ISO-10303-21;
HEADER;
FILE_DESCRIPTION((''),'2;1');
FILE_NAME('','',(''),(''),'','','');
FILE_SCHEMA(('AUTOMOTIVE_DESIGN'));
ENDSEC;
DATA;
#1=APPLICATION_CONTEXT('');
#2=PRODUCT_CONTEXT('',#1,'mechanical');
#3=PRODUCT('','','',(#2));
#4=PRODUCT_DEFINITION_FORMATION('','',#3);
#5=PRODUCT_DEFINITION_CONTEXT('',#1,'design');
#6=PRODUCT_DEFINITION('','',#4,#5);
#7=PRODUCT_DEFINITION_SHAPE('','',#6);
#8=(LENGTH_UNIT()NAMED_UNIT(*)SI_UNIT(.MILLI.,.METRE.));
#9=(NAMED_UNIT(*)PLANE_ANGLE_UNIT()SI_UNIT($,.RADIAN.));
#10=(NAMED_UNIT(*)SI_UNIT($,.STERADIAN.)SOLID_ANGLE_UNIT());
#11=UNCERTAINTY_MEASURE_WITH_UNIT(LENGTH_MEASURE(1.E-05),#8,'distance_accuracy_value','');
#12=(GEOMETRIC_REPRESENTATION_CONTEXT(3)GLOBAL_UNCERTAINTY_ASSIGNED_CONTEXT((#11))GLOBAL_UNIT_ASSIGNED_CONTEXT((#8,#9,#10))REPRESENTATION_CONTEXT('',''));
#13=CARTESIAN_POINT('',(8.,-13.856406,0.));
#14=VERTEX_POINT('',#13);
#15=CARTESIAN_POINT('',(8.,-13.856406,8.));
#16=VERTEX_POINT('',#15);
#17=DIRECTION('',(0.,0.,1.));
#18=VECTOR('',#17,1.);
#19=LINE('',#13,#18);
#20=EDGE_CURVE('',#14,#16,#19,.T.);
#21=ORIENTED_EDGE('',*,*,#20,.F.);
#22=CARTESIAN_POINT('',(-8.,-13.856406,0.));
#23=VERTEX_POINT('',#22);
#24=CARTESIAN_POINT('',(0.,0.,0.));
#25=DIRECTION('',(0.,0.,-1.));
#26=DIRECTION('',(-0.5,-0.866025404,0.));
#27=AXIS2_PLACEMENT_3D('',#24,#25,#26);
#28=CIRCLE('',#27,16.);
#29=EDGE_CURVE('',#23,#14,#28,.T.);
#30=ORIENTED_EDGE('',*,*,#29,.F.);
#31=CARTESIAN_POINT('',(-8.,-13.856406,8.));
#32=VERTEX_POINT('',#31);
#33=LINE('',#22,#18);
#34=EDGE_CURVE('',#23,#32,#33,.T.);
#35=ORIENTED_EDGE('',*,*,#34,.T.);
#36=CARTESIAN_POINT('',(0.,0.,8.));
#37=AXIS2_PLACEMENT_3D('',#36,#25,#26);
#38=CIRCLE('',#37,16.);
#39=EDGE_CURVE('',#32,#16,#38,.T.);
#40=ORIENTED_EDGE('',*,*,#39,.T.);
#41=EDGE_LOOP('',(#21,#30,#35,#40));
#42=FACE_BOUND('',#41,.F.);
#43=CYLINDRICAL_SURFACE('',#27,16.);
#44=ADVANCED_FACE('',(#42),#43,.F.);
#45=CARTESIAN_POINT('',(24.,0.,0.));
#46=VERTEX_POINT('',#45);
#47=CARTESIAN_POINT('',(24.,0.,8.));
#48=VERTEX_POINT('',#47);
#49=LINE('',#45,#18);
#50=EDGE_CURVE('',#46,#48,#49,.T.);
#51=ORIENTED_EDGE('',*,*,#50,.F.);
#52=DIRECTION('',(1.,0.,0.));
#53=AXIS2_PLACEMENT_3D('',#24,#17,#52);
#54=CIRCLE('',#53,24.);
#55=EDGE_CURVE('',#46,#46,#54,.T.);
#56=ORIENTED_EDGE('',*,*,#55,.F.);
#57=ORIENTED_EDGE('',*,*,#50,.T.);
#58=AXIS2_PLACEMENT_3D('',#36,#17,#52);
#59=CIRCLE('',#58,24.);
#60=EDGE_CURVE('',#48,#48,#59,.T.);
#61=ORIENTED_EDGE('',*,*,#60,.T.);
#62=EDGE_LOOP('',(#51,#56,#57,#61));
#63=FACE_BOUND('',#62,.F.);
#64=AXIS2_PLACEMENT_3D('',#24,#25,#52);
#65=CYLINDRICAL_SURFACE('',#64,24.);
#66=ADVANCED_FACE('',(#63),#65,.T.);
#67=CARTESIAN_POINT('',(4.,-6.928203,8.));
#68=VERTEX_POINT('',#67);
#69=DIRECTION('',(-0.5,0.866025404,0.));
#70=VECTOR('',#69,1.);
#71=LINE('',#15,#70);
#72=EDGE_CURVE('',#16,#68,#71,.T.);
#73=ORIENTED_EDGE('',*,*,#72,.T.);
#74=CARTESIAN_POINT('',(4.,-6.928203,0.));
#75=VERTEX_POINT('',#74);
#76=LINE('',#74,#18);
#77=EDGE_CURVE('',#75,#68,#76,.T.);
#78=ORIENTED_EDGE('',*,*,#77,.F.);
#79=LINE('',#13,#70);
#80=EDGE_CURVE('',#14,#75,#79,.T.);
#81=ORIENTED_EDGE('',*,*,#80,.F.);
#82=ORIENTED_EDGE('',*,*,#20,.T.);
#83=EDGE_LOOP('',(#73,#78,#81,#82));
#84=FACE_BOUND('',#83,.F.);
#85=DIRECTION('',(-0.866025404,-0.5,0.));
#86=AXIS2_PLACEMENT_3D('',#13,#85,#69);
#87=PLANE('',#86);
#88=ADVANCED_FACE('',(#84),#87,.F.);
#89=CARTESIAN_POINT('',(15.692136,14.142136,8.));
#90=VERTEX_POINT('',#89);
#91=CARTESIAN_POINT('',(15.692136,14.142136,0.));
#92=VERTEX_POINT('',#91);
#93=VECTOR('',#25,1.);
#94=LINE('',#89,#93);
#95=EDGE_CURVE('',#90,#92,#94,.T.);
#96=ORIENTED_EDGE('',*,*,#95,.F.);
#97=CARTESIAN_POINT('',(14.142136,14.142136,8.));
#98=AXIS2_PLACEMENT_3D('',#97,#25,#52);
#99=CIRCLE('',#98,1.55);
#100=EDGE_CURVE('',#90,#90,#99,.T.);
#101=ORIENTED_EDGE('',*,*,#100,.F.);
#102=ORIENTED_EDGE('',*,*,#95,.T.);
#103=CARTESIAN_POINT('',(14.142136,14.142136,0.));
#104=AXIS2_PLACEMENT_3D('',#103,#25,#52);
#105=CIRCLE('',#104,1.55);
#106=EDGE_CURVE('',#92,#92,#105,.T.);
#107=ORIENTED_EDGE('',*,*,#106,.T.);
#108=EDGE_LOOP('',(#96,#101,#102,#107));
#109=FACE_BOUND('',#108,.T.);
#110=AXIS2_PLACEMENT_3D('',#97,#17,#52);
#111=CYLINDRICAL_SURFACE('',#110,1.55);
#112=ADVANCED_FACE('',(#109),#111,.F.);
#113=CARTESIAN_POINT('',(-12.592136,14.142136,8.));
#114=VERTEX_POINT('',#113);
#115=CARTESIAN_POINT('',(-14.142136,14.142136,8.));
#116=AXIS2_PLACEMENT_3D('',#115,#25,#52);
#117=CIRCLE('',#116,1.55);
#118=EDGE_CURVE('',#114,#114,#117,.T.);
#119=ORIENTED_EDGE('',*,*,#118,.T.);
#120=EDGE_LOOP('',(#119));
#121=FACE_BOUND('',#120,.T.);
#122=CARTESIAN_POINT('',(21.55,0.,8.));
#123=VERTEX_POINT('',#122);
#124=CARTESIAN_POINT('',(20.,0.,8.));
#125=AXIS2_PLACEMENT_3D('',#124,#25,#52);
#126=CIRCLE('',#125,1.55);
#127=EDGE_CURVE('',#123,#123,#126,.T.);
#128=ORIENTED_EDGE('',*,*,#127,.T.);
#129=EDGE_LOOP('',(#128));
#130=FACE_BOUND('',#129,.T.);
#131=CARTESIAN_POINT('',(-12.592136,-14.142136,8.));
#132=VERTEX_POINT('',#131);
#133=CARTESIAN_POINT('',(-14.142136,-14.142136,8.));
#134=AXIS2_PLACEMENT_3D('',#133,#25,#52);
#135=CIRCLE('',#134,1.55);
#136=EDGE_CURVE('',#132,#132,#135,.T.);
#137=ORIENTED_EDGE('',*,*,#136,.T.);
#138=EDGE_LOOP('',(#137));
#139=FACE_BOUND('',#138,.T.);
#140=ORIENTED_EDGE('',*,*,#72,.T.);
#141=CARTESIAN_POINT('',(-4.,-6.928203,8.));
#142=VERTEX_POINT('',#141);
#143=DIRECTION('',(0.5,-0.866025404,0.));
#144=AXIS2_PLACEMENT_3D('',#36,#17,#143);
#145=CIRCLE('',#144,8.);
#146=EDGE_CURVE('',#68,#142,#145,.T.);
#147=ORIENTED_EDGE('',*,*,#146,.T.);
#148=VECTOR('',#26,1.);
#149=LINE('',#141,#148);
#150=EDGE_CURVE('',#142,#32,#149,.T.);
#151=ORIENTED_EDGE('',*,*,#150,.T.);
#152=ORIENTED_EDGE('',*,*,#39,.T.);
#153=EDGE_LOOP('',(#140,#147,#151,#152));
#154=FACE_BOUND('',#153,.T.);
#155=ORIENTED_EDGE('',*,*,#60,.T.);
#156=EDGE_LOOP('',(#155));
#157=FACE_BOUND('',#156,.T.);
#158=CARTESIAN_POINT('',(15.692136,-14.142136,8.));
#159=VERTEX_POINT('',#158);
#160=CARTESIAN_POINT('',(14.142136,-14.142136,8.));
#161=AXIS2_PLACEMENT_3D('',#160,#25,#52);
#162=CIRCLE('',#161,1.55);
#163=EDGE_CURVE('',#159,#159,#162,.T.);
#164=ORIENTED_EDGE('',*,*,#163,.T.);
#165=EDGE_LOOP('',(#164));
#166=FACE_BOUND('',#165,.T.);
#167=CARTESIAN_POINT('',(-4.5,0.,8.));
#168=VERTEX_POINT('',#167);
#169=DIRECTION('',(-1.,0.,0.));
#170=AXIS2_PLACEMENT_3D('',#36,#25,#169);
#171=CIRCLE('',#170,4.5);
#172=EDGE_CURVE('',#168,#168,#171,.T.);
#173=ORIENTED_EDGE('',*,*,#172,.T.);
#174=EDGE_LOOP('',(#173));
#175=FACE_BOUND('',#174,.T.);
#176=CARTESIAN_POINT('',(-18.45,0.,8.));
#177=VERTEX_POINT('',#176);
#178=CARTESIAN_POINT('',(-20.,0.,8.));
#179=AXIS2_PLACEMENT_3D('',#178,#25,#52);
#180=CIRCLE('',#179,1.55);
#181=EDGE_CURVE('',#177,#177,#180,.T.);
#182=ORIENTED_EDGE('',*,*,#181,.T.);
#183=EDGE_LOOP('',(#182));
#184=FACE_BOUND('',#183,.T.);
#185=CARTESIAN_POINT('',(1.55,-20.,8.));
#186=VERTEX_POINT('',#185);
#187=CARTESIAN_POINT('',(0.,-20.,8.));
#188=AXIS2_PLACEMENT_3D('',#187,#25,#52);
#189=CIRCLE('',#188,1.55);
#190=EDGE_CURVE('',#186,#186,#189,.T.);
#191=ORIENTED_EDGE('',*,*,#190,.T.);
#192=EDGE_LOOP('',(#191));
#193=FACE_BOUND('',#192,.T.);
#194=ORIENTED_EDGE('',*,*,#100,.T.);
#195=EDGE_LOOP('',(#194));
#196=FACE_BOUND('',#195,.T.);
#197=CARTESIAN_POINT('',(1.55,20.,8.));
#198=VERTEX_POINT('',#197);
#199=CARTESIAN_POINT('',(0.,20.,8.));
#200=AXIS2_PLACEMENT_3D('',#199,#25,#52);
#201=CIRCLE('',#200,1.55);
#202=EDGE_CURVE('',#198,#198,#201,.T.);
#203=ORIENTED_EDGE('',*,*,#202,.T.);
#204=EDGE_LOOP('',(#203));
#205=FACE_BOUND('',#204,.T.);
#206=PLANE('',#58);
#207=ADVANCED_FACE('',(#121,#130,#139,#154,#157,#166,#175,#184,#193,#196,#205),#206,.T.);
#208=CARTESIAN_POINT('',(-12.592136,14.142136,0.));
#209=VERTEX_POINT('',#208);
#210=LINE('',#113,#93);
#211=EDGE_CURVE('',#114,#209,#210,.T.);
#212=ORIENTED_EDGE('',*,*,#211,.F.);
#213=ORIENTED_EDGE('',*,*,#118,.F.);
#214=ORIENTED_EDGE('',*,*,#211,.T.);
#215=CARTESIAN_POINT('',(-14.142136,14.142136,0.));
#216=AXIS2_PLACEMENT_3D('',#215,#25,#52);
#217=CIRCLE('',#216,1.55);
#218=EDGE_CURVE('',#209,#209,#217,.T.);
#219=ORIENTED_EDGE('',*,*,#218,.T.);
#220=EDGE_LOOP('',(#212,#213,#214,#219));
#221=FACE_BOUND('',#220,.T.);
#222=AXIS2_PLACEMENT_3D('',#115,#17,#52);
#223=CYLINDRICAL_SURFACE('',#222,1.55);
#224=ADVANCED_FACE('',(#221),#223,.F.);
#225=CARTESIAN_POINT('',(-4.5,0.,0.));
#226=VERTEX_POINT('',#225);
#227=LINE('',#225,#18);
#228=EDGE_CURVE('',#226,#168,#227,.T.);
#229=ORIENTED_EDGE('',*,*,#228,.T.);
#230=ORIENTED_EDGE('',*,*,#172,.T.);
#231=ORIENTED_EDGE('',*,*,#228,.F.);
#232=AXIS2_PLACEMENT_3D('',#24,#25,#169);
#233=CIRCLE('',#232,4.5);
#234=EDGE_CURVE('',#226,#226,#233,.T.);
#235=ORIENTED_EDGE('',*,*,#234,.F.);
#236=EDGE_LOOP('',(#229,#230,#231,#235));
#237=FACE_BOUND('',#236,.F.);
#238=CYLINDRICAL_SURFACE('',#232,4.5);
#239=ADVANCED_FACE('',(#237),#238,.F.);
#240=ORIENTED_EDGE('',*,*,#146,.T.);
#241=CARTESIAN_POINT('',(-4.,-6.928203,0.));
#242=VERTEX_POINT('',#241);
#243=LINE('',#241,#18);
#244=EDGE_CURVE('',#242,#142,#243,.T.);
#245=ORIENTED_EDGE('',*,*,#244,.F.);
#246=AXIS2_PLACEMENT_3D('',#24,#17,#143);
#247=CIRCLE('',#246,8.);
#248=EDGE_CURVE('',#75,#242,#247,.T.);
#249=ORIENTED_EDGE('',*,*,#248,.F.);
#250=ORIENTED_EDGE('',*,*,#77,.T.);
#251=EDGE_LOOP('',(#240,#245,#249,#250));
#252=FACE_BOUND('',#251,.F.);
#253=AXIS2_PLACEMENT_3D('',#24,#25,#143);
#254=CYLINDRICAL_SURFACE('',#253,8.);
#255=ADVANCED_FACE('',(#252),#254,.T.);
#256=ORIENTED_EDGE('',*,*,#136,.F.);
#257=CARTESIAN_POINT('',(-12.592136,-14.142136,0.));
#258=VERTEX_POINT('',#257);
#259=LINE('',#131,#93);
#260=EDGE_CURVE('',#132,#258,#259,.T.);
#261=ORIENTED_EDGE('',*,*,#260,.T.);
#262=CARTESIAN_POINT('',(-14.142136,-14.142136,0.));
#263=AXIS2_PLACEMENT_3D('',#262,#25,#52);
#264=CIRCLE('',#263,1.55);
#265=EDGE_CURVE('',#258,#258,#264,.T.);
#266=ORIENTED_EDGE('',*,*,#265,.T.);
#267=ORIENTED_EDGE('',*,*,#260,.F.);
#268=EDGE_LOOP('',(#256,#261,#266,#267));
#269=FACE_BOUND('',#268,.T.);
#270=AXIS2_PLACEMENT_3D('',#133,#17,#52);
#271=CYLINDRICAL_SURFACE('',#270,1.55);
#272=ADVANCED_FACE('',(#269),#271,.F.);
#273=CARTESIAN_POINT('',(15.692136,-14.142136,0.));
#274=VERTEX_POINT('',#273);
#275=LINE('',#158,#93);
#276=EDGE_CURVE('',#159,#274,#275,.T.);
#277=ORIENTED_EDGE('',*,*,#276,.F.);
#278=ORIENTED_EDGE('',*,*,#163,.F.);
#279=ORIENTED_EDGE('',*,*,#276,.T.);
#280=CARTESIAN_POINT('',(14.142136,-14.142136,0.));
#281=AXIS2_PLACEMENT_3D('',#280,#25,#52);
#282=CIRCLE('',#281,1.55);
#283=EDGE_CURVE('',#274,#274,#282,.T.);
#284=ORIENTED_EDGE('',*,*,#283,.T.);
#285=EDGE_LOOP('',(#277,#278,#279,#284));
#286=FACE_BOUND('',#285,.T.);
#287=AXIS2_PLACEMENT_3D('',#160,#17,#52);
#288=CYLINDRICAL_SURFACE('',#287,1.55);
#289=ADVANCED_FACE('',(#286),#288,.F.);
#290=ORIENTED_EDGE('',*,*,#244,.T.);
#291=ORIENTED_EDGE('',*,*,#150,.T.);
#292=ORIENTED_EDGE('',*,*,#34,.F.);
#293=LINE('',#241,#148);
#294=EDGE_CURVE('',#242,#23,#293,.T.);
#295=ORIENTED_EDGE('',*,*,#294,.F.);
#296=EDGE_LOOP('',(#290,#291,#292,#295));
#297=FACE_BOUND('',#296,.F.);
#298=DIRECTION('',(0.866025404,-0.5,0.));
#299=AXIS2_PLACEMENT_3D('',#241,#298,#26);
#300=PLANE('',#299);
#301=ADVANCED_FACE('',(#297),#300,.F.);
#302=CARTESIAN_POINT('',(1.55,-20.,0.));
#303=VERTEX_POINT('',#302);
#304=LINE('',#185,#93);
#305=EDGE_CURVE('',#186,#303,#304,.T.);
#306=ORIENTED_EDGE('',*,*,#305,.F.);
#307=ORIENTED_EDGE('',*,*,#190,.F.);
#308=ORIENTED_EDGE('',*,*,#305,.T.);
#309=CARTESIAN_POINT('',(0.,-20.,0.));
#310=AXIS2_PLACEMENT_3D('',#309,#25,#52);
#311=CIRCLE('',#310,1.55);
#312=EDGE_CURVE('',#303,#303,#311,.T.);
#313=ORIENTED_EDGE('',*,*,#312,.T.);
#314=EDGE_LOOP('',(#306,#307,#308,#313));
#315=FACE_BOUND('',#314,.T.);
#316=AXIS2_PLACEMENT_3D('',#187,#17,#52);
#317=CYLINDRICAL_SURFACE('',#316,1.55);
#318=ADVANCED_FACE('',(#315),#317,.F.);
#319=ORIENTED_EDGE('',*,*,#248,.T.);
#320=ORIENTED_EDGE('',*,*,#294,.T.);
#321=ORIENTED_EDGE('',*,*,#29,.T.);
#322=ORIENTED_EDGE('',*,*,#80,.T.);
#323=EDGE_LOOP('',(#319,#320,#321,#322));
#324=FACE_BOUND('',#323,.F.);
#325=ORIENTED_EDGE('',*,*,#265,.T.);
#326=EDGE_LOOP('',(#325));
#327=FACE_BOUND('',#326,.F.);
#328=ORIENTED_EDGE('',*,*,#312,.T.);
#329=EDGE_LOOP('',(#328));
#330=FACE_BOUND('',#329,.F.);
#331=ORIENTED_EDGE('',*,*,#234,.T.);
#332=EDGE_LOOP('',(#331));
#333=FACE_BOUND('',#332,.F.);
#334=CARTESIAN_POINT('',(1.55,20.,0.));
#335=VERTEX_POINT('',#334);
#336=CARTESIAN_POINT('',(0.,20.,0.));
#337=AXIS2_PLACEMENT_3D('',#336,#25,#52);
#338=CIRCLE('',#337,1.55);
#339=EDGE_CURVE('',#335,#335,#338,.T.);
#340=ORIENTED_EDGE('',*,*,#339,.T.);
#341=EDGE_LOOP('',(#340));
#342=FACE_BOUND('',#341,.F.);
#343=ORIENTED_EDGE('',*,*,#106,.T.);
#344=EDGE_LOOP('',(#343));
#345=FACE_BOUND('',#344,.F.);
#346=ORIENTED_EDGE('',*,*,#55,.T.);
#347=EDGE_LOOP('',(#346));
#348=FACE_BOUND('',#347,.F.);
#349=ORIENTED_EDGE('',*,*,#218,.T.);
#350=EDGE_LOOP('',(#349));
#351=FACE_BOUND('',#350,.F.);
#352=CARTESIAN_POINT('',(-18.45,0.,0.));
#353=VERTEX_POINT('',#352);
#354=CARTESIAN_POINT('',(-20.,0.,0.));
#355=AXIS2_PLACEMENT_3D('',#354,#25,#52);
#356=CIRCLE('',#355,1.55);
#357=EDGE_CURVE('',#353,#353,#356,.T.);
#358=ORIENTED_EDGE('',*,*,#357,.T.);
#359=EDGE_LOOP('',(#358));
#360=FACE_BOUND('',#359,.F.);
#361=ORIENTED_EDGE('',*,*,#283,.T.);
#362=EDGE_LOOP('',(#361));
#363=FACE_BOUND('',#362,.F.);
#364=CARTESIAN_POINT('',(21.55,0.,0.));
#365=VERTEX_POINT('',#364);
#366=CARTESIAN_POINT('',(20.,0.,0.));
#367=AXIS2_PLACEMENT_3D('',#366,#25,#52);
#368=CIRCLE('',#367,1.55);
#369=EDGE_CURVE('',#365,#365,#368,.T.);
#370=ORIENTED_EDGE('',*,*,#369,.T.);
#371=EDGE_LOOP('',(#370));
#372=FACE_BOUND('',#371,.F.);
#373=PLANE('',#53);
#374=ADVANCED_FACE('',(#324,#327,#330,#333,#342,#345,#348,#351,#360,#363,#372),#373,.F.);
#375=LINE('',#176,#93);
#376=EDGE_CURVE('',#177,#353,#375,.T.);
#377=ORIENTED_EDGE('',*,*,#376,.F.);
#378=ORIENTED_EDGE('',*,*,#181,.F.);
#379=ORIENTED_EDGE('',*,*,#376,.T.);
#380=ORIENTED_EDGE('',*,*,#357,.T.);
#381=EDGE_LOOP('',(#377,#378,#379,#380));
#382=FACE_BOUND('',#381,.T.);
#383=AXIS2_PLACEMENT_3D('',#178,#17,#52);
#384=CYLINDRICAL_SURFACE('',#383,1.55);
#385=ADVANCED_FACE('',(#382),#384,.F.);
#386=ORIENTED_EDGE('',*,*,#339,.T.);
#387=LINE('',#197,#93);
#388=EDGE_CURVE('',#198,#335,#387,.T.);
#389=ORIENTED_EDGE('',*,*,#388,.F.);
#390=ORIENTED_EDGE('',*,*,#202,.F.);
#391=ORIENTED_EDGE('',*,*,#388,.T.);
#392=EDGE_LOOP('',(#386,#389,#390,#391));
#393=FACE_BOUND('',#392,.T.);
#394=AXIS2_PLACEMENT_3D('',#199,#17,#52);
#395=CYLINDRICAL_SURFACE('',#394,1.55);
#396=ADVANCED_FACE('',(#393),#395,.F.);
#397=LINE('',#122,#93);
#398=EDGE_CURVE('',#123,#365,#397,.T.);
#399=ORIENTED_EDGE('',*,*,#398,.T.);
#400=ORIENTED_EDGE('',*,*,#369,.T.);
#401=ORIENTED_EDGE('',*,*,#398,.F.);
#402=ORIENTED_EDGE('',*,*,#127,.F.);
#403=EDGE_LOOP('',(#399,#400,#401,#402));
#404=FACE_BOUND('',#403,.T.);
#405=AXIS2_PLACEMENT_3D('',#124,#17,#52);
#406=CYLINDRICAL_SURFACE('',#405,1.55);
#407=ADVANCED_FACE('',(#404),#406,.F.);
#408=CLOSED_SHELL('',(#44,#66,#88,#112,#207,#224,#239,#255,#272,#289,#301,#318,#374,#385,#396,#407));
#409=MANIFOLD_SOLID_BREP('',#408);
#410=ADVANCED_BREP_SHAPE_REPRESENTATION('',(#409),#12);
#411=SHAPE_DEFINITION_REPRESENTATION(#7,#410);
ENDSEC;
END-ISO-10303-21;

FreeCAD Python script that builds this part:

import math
import FreeCAD as App
import Part
import Sketcher
from FreeCAD import Vector
Q = App.Units.Quantity

doc = App.newDocument("Part")
params = doc.addObject("Spreadsheet::Sheet", "Params")
for row, (alias, value) in enumerate([
    ("sketch1_diameter", "48 mm"),
    ("pad1_length", "8 mm"),
    ("sketch2_radius", "8 mm"),
    ("sketch2_radius2", "16 mm"),
    ("pocket1_length", "8 mm"),
    ("sketch3_diameter", "9 mm"),
    ("pocket2_length", "8 mm"),
    ("sketch4_diameter", "3.1 mm"),
    ("pocket3_length", "8 mm"),
], start=1):
    params.set(f"A{row}", alias)
    params.set(f"B{row}", "=" + value)
    params.setAlias(f"B{row}", alias)

body = doc.addObject("PartDesign::Body", "Body")

# Sketch on XY plane
sketch1 = body.newObject("Sketcher::SketchObject", "Sketch")
sketch1.AttachmentSupport = (doc.getObject("XY_Plane"), [""])
sketch1.MapMode = "FlatFace"
sketch1.addGeometry(Part.Circle(Vector(0, 0, 0), Vector(0, 0, 1), 24), False)
sketch1.addConstraint([
    Sketcher.Constraint("Coincident", 0, 3, -1, 1),
    Sketcher.Constraint("Diameter", 0, Q("48 mm")),
])
sketch1.setExpression("Constraints[1]", "Params.sketch1_diameter")
pad1 = body.newObject("PartDesign::Pad", "Pad")
pad1.Profile = sketch1
pad1.setExpression("Length", "Params.pad1_length")

# Sketch on XY plane
sketch2 = body.newObject("Sketcher::SketchObject", "Sketch001")
sketch2.AttachmentSupport = (doc.getObject("XY_Plane"), [""])
sketch2.MapMode = "FlatFace"
sketch2.addGeometry([
    Part.LineSegment(Vector(-8, -13.856406, 0), Vector(-4, -6.928203, 0)),
    Part.ArcOfCircle(Part.Circle(Vector(0, 0, 0), Vector(0, 0, 1), 8), math.radians(-60), math.radians(240)),
    Part.LineSegment(Vector(4, -6.928203, 0), Vector(8, -13.856406, 0)),
    Part.ArcOfCircle(Part.Circle(Vector(0, 0, 0), Vector(0, 0, 1), 16), math.radians(-60), math.radians(240)),
], False)
sketch2.addConstraint([
    Sketcher.Constraint("Coincident", 0, 2, 1, 2),
    Sketcher.Constraint("Coincident", 1, 1, 2, 1),
    Sketcher.Constraint("Coincident", 2, 2, 3, 1),
    Sketcher.Constraint("Coincident", 3, 2, 0, 1),
    Sketcher.Constraint("Coincident", 1, 3, -1, 1),
    Sketcher.Constraint("Coincident", 3, 3, -1, 1),
    Sketcher.Constraint("Horizontal", 0, 2, 1, 1),
    Sketcher.Constraint("Horizontal", 2, 2, 3, 2),
    Sketcher.Constraint("Radius", 1, Q("8 mm")),
    Sketcher.Constraint("Radius", 3, Q("16 mm")),
    Sketcher.Constraint("Angle", 0, Q("60 deg")),
    Sketcher.Constraint("DistanceX", 0, 2, -1, 1, Q("4 mm")),
])
sketch2.setExpression("Constraints[8]", "Params.sketch2_radius")
sketch2.setExpression("Constraints[9]", "Params.sketch2_radius2")
pocket1 = body.newObject("PartDesign::Pocket", "Pocket")
pocket1.Profile = sketch2
pocket1.setExpression("Length", "Params.pocket1_length")
pocket1.Reversed = True

# Sketch on XY plane
sketch3 = body.newObject("Sketcher::SketchObject", "Sketch002")
sketch3.AttachmentSupport = (doc.getObject("XY_Plane"), [""])
sketch3.MapMode = "FlatFace"
sketch3.addGeometry(Part.Circle(Vector(0, 0, 0), Vector(0, 0, 1), 4.5), False)
sketch3.addConstraint([
    Sketcher.Constraint("Coincident", 0, 3, -1, 1),
    Sketcher.Constraint("Diameter", 0, Q("9 mm")),
])
sketch3.setExpression("Constraints[1]", "Params.sketch3_diameter")
pocket2 = body.newObject("PartDesign::Pocket", "Pocket001")
pocket2.Profile = sketch3
pocket2.setExpression("Length", "Params.pocket2_length")
pocket2.Reversed = True

# Sketch on XY plane
sketch4 = body.newObject("Sketcher::SketchObject", "Sketch003")
sketch4.AttachmentSupport = (doc.getObject("XY_Plane"), [""])
sketch4.MapMode = "FlatFace"
sketch4.AttachmentOffset = App.Placement(Vector(0, 0, 8), App.Rotation())
sketch4.addGeometry([
    Part.Circle(Vector(0, 20, 0), Vector(0, 0, 1), 1.55),  # 0
    Part.Circle(Vector(-14.142136, 14.142136, 0), Vector(0, 0, 1), 1.55),  # 1
    Part.Circle(Vector(-20, 0, 0), Vector(0, 0, 1), 1.55),  # 2
    Part.Circle(Vector(-14.142136, -14.142136, 0), Vector(0, 0, 1), 1.55),  # 3
    Part.Circle(Vector(0, -20, 0), Vector(0, 0, 1), 1.55),  # 4
    Part.Circle(Vector(14.142136, -14.142136, 0), Vector(0, 0, 1), 1.55),  # 5
    Part.Circle(Vector(20, 0, 0), Vector(0, 0, 1), 1.55),  # 6
    Part.Circle(Vector(14.142136, 14.142136, 0), Vector(0, 0, 1), 1.55),  # 7
], False)
sketch4.addConstraint([
    Sketcher.Constraint("Equal", 0, 1),
    Sketcher.Constraint("Equal", 1, 2),
    Sketcher.Constraint("Equal", 2, 3),
    Sketcher.Constraint("Equal", 3, 4),
    Sketcher.Constraint("Equal", 4, 5),
    Sketcher.Constraint("Equal", 5, 6),
    Sketcher.Constraint("Equal", 6, 7),
    Sketcher.Constraint("Symmetric", 0, 3, 4, 3, -1, 1),
    Sketcher.Constraint("Symmetric", 1, 3, 5, 3, -1, 1),
    Sketcher.Constraint("Symmetric", 2, 3, 6, 3, -1, 1),
    Sketcher.Constraint("Symmetric", 3, 3, 7, 3, -1, 1),
    Sketcher.Constraint("Symmetric", 3, 3, 5, 3, -2),
    Sketcher.Constraint("PointOnObject", 0, 3, -2),
    Sketcher.Constraint("PointOnObject", 2, 3, -1),
    Sketcher.Constraint("Diameter", 0, Q("3.1 mm")),
    Sketcher.Constraint("DistanceY", -1, 1, 0, 3, Q("20 mm")),
    Sketcher.Constraint("DistanceX", 2, 3, -1, 1, Q("20 mm")),
    Sketcher.Constraint("DistanceY", 3, 3, 1, 3, Q("28.284271 mm")),
    Sketcher.Constraint("DistanceX", 3, 3, 5, 3, Q("28.284271 mm")),
])
sketch4.setExpression("Constraints[14]", "Params.sketch4_diameter")
pocket3 = body.newObject("PartDesign::Pocket", "Pocket002")
pocket3.Profile = sketch4
pocket3.setExpression("Length", "Params.pocket3_length")

doc.recompute()
